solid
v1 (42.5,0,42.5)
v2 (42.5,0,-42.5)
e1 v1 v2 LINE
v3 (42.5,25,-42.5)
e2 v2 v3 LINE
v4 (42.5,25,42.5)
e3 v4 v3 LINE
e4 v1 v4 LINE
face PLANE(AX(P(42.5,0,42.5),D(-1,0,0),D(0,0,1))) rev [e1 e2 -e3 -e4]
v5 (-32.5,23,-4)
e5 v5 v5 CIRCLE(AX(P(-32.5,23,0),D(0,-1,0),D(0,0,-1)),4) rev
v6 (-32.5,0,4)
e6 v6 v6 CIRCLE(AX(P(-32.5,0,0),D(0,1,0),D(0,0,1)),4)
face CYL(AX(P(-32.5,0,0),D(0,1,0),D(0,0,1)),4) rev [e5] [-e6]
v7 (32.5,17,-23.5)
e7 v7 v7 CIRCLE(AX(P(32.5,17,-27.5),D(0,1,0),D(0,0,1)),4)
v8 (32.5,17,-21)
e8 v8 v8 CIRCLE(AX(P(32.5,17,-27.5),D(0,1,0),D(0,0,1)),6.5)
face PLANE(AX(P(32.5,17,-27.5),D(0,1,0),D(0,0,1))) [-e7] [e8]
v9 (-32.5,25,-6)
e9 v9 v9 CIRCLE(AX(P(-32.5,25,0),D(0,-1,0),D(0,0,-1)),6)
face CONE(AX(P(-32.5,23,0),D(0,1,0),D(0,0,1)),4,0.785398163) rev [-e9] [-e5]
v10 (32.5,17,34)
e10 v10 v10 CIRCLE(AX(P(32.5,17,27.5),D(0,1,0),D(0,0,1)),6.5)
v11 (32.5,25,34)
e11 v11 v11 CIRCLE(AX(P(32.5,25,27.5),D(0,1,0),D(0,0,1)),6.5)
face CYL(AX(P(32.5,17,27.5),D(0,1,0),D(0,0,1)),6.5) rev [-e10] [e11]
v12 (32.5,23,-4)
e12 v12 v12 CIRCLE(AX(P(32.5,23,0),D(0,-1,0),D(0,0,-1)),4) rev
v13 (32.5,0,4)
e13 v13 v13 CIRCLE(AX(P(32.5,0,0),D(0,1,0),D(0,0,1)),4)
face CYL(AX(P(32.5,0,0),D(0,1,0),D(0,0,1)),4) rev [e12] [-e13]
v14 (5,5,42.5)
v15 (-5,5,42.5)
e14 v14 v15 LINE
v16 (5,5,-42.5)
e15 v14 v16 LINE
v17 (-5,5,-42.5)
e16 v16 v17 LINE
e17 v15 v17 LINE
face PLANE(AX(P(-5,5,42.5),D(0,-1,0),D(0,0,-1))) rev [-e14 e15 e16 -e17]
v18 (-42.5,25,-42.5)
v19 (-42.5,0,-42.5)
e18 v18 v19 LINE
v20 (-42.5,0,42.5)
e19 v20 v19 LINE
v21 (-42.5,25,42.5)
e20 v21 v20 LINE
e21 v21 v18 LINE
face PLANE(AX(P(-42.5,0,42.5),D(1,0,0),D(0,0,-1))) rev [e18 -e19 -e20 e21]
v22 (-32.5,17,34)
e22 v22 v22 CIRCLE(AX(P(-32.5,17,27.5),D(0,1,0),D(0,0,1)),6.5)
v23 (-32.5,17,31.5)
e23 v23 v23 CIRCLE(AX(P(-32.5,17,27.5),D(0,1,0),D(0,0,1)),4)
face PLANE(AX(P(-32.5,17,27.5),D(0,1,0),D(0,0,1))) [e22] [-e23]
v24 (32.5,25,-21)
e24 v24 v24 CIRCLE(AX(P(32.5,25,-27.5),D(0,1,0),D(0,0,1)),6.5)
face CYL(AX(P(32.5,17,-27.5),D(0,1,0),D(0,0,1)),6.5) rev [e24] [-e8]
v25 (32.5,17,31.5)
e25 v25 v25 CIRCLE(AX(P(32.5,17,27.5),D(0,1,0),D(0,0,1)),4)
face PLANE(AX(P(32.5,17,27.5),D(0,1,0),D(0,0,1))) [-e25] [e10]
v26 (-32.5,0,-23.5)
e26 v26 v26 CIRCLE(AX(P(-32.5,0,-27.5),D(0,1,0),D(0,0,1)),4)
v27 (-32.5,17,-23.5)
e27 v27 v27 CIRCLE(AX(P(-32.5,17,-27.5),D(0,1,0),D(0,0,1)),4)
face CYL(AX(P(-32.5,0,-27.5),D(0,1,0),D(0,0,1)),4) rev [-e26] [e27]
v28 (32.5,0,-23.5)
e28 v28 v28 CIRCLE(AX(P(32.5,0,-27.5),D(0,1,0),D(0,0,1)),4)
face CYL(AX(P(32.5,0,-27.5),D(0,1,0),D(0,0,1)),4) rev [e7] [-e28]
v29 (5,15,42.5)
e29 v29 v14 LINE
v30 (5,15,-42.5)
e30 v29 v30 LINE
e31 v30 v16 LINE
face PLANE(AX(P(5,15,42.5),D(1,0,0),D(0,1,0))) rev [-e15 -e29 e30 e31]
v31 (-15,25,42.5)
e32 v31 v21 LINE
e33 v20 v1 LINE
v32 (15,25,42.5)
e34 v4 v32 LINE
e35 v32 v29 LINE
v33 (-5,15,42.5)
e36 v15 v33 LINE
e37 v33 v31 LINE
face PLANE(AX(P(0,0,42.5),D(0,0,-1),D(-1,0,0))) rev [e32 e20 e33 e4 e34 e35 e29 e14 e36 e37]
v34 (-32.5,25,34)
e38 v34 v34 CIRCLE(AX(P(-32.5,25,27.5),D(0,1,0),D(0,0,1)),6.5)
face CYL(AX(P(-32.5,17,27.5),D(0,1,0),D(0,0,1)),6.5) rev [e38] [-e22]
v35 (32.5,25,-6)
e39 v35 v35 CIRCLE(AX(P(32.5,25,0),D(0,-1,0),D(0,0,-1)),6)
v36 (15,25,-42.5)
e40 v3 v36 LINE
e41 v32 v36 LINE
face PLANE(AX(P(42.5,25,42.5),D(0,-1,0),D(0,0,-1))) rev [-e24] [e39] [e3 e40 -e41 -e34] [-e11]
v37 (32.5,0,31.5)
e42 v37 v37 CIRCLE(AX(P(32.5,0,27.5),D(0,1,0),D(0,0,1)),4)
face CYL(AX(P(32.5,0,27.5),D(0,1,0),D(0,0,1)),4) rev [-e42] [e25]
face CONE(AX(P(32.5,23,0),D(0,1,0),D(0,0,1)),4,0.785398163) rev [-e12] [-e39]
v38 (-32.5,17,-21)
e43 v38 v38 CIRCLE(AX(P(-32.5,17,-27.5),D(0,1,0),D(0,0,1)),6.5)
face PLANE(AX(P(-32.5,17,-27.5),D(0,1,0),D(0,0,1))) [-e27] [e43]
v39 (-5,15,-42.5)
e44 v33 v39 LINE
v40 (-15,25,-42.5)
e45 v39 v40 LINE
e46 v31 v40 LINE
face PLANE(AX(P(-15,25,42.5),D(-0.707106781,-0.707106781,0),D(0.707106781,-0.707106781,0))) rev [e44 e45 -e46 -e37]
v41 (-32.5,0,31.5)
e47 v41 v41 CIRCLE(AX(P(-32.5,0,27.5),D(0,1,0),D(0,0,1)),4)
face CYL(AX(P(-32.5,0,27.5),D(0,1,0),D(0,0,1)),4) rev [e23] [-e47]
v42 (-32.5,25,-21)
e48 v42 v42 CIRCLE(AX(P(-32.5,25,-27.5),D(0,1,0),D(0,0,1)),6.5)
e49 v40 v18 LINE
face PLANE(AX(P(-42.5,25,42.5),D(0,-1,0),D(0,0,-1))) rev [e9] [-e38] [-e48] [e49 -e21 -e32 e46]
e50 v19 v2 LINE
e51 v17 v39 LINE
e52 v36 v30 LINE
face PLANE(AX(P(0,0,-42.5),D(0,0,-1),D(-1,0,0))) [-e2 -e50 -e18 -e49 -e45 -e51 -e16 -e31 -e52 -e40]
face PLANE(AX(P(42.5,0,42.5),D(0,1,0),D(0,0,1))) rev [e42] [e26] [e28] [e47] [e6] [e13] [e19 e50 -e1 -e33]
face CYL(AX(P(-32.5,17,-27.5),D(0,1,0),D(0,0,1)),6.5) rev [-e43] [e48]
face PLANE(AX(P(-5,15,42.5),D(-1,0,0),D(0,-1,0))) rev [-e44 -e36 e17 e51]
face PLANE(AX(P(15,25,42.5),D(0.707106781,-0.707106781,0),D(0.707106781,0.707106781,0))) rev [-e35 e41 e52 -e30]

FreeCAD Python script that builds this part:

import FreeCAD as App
import Part
import Sketcher
Q = App.Units.Quantity


def edges_at(feature, points):
    """Names of the edges that pass closest to the given points."""
    edges = feature.Shape.Edges
    near = lambda p: min(range(len(edges)), key=lambda i: edges[i].distToShape(Part.Vertex(*p))[0])
    return sorted({f"Edge{near(p) + 1}" for p in points})

doc = App.newDocument("Part")
body = doc.addObject("PartDesign::Body", "Body")

sketch1 = body.newObject("Sketcher::SketchObject", "Sketch")
sketch1.AttachmentSupport = (doc.getObject("XY_Plane"), [""])
sketch1.MapMode = "FlatFace"
sketch1.addGeometry(Part.LineSegment(App.Vector(-42, 0, 0), App.Vector(42, 0, 0)), False)
sketch1.addGeometry(Part.LineSegment(App.Vector(42, 0, 0), App.Vector(42, 25, 0)), False)
sketch1.addGeometry(Part.LineSegment(App.Vector(42, 25, 0), App.Vector(15, 25, 0)), False)
sketch1.addGeometry(Part.LineSegment(App.Vector(15, 25, 0), App.Vector(5, 15, 0)), False)
sketch1.addGeometry(Part.LineSegment(App.Vector(5, 15, 0), App.Vector(5, 5, 0)), False)
sketch1.addGeometry(Part.LineSegment(App.Vector(5, 5, 0), App.Vector(-5, 5, 0)), False)
sketch1.addGeometry(Part.LineSegment(App.Vector(-5, 5, 0), App.Vector(-5, 15, 0)), False)
sketch1.addGeometry(Part.LineSegment(App.Vector(-5, 15, 0), App.Vector(-15, 25, 0)), False)
sketch1.addGeometry(Part.LineSegment(App.Vector(-15, 25, 0), App.Vector(-42, 25, 0)), False)
sketch1.addGeometry(Part.LineSegment(App.Vector(-42, 25, 0), App.Vector(-42, 0, 0)), False)
sketch1.addConstraint(Sketcher.Constraint("Coincident", 0, 2, 1, 1))
sketch1.addConstraint(Sketcher.Constraint("Coincident", 1, 2, 2, 1))
sketch1.addConstraint(Sketcher.Constraint("Coincident", 2, 2, 3, 1))
sketch1.addConstraint(Sketcher.Constraint("Coincident", 3, 2, 4, 1))
sketch1.addConstraint(Sketcher.Constraint("Coincident", 4, 2, 5, 1))
sketch1.addConstraint(Sketcher.Constraint("Coincident", 5, 2, 6, 1))
sketch1.addConstraint(Sketcher.Constraint("Coincident", 6, 2, 7, 1))
sketch1.addConstraint(Sketcher.Constraint("Coincident", 7, 2, 8, 1))
sketch1.addConstraint(Sketcher.Constraint("Coincident", 8, 2, 9, 1))
sketch1.addConstraint(Sketcher.Constraint("Coincident", 9, 2, 0, 1))
sketch1.addConstraint(Sketcher.Constraint("Horizontal", 0))
sketch1.addConstraint(Sketcher.Constraint("Vertical", 1))
sketch1.addConstraint(Sketcher.Constraint("Horizontal", 2))
sketch1.addConstraint(Sketcher.Constraint("Vertical", 4))
sketch1.addConstraint(Sketcher.Constraint("Horizontal", 5))
sketch1.addConstraint(Sketcher.Constraint("Vertical", 6))
sketch1.addConstraint(Sketcher.Constraint("Horizontal", 8))
sketch1.addConstraint(Sketcher.Constraint("Vertical", 9))
sketch1.addConstraint(Sketcher.Constraint("Symmetric", 0, 2, 9, 2, -1, 1))
sketch1.addConstraint(Sketcher.Constraint("Symmetric", 3, 2, 6, 2, -2))
sketch1.addConstraint(Sketcher.Constraint("Symmetric", 2, 2, 7, 2, -2))
sketch1.addConstraint(Sketcher.Constraint("Perpendicular", 3, 7))
sketch1.addConstraint(Sketcher.Constraint("Equal", 5, 4))
sketch1.addConstraint(Sketcher.Constraint("DistanceX", 0, 1, 0, 2, Q("85 mm")))
sketch1.addConstraint(Sketcher.Constraint("DistanceX", 5, 2, 5, 1, Q("10 mm")))
sketch1.addConstraint(Sketcher.Constraint("DistanceY", 1, 1, 1, 2, Q("25 mm")))
sketch1.addConstraint(Sketcher.Constraint("DistanceX", 2, 2, 2, 1, Q("27.5 mm")))
pad1 = body.newObject("PartDesign::Pad", "Pad")
pad1.Profile = sketch1
pad1.Length = 85
pad1.Midplane = True

sketch2 = body.newObject("Sketcher::SketchObject", "Sketch001")
sketch2.AttachmentSupport = (doc.getObject("XZ_Plane"), [""])
sketch2.MapMode = "FlatFace"
sketch2.AttachmentOffset = App.Placement(App.Vector(0, 0, -25), App.Rotation())
sketch2.addGeometry(Part.Circle(App.Vector(-32, -28, 0), App.Vector(0, 0, 1), 6), False)
sketch2.addGeometry(Part.Circle(App.Vector(-32, 28, 0), App.Vector(0, 0, 1), 6), False)
sketch2.addGeometry(Part.Circle(App.Vector(32, 28, 0), App.Vector(0, 0, 1), 6), False)
sketch2.addGeometry(Part.Circle(App.Vector(32, -28, 0), App.Vector(0, 0, 1), 6), False)
sketch2.addConstraint(Sketcher.Constraint("Equal", 0, 1))
sketch2.addConstraint(Sketcher.Constraint("Equal", 1, 2))
sketch2.addConstraint(Sketcher.Constraint("Equal", 2, 3))
sketch2.addConstraint(Sketcher.Constraint("Symmetric", 0, 3, 2, 3, -1, 1))
sketch2.addConstraint(Sketcher.Constraint("Symmetric", 1, 3, 3, 3, -1, 1))
sketch2.addConstraint(Sketcher.Constraint("Symmetric", 1, 3, 2, 3, -2))
sketch2.addConstraint(Sketcher.Constraint("Diameter", 0, Q("13 mm")))
sketch2.addConstraint(Sketcher.Constraint("DistanceY", 0, 3, 1, 3, Q("55 mm")))
sketch2.addConstraint(Sketcher.Constraint("DistanceX", 1, 3, 2, 3, Q("65 mm")))
pocket1 = body.newObject("PartDesign::Pocket", "Pocket")
pocket1.Profile = sketch2
pocket1.Length = 8
pocket1.Reversed = True

sketch3 = body.newObject("Sketcher::SketchObject", "Sketch002")
sketch3.AttachmentSupport = (doc.getObject("XZ_Plane"), [""])
sketch3.MapMode = "FlatFace"
sketch3.AttachmentOffset = App.Placement(App.Vector(0, 0, -25), App.Rotation())
sketch3.addGeometry(Part.Circle(App.Vector(-32.5, 0, 0), App.Vector(0, 0, 1), 4), False)
sketch3.addGeometry(Part.Circle(App.Vector(-32.5, -27.5, 0), App.Vector(0, 0, 1), 4), False)
sketch3.addGeometry(Part.Circle(App.Vector(32.5, -27.5, 0), App.Vector(0, 0, 1), 4), False)
sketch3.addGeometry(Part.Circle(App.Vector(32.5, 0, 0), App.Vector(0, 0, 1), 4), False)
sketch3.addGeometry(Part.Circle(App.Vector(32.5, 27.5, 0), App.Vector(0, 0, 1), 4), False)
sketch3.addGeometry(Part.Circle(App.Vector(-32.5, 27.5, 0), App.Vector(0, 0, 1), 4), False)
sketch3.addConstraint(Sketcher.Constraint("Equal", 0, 1))
sketch3.addConstraint(Sketcher.Constraint("Equal", 1, 2))
sketch3.addConstraint(Sketcher.Constraint("Equal", 2, 3))
sketch3.addConstraint(Sketcher.Constraint("Equal", 3, 4))
sketch3.addConstraint(Sketcher.Constraint("Equal", 4, 5))
sketch3.addConstraint(Sketcher.Constraint("Symmetric", 0, 3, 3, 3, -1, 1))
sketch3.addConstraint(Sketcher.Constraint("Symmetric", 1, 3, 4, 3, -1, 1))
sketch3.addConstraint(Sketcher.Constraint("Symmetric", 2, 3, 5, 3, -1, 1))
sketch3.addConstraint(Sketcher.Constraint("Symmetric", 1, 3, 2, 3, -2))
sketch3.addConstraint(Sketcher.Constraint("PointOnObject", 0, 3, -1))
sketch3.addConstraint(Sketcher.Constraint("Vertical", 0, 3, 1, 3))
sketch3.addConstraint(Sketcher.Constraint("Diameter", 0, Q("8 mm")))
sketch3.addConstraint(Sketcher.Constraint("DistanceX", 1, 3, 2, 3, Q("65 mm")))
sketch3.addConstraint(Sketcher.Constraint("DistanceY", 2, 3, 4, 3, Q("55 mm")))
pocket2 = body.newObject("PartDesign::Pocket", "Pocket001")
pocket2.Profile = sketch3
pocket2.Type = "ThroughAll"
pocket2.Reversed = True
doc.recompute()

chamfer = body.newObject("PartDesign::Chamfer", "Chamfer")
chamfer.Base = (pocket2, edges_at(pocket2, [(-32.5, 25, -4), (32.5, 25, -4)]))
chamfer.Size = 2

doc.recompute()
